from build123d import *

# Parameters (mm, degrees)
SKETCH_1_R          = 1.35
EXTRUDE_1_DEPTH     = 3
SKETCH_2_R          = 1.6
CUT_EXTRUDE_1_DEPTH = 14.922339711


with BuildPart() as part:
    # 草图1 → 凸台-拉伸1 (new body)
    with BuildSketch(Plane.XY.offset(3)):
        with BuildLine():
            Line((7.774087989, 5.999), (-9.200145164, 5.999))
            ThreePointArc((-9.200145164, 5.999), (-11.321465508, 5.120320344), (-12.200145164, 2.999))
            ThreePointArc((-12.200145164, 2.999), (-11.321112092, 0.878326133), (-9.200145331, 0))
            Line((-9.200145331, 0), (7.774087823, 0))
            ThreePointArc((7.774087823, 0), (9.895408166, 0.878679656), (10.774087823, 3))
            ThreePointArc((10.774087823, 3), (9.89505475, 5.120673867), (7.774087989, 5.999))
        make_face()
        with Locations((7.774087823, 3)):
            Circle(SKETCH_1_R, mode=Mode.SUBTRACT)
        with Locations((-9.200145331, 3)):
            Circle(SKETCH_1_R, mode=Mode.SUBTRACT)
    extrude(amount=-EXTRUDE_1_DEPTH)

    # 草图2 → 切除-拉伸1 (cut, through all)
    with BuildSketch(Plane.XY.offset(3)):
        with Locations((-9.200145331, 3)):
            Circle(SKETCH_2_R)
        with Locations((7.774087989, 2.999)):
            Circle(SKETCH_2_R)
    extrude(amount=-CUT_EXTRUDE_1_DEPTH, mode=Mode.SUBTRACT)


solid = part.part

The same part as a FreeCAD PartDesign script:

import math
import FreeCAD as App
import Part
import Sketcher
from FreeCAD import Vector
Q = App.Units.Quantity

doc = App.newDocument("Part")
body = doc.addObject("PartDesign::Body", "Body")

sketch1 = body.newObject("Sketcher::SketchObject", "Sketch")
sketch1.AttachmentSupport = (doc.getObject("XY_Plane"), [""])
sketch1.MapMode = "FlatFace"
sketch1.AttachmentOffset = App.Placement(Vector(0, 0, 3), App.Rotation())
sketch1.addGeometry([
    Part.LineSegment(Vector(7.774088, 5.999, 0), Vector(-9.200145, 5.999, 0)),
    Part.ArcOfCircle(Part.Circle(Vector(-9.200145, 2.999, 0), Vector(0, 0, 1), 3), math.radians(90), math.radians(180)),
    Part.ArcOfCircle(Part.Circle(Vector(-9.200145, 3, 0), Vector(0, 0, 1), 3), math.radians(-179.980901), math.radians(-90)),
    Part.LineSegment(Vector(-9.200145, 0, 0), Vector(7.774088, 0, 0)),
    Part.ArcOfCircle(Part.Circle(Vector(7.774088, 3, 0), Vector(0, 0, 1), 3), math.radians(-90), math.radians(0)),
    Part.ArcOfCircle(Part.Circle(Vector(7.774088, 2.999, 0), Vector(0, 0, 1), 3), math.radians(0.019099), math.radians(90)),
    Part.Circle(Vector(-9.200145, 3, 0), Vector(0, 0, 1), 1.35),
    Part.Circle(Vector(7.774088, 3, 0), Vector(0, 0, 1), 1.35),
], False)
sketch1.addConstraint([
    Sketcher.Constraint("Tangent", 0, 2, 1, 1),
    Sketcher.Constraint("Coincident", 1, 2, 2, 1),
    Sketcher.Constraint("Tangent", 2, 2, 3, 1),
    Sketcher.Constraint("Tangent", 3, 2, 4, 1),
    Sketcher.Constraint("Coincident", 4, 2, 5, 1),
    Sketcher.Constraint("Tangent", 5, 2, 0, 1),
    Sketcher.Constraint("Horizontal", 0),
    Sketcher.Constraint("Horizontal", 3),
    Sketcher.Constraint("Coincident", 6, 3, 2, 3),
    Sketcher.Constraint("Coincident", 7, 3, 4, 3),
    Sketcher.Constraint("Equal", 1, 2),
    Sketcher.Constraint("Equal", 2, 4),
    Sketcher.Constraint("Equal", 4, 5),
    Sketcher.Constraint("Equal", 6, 7),
    Sketcher.Constraint("PointOnObject", 2, 2, -1),
    Sketcher.Constraint("Horizontal", 5, 3, 1, 2),
    Sketcher.Constraint("Horizontal", 7, 3, 4, 2),
    Sketcher.Constraint("Radius", 1, Q("3 mm")),
    Sketcher.Constraint("Diameter", 6, Q("2.7 mm")),
    Sketcher.Constraint("DistanceY", -1, 1, 1, 3, Q("2.999 mm")),
    Sketcher.Constraint("DistanceX", 0, 2, 0, 1, Q("16.974233 mm")),
    Sketcher.Constraint("DistanceX", 1, 3, -1, 1, Q("9.200145 mm")),
])
pad1 = body.newObject("PartDesign::Pad", "Pad")
pad1.Profile = sketch1
pad1.Length = 3
pad1.Reversed = True

sketch2 = body.newObject("Sketcher::SketchObject", "Sketch001")
sketch2.AttachmentSupport = (doc.getObject("XY_Plane"), [""])
sketch2.MapMode = "FlatFace"
sketch2.AttachmentOffset = App.Placement(Vector(0, 0, 3), App.Rotation())
sketch2.addGeometry([
    Part.Circle(Vector(-9.200145, 3, 0), Vector(0, 0, 1), 1.6),
    Part.Circle(Vector(7.774088, 2.999, 0), Vector(0, 0, 1), 1.6),
], False)
sketch2.addConstraint([
    Sketcher.Constraint("Equal", 0, 1),
    Sketcher.Constraint("Diameter", 0, Q("3.2 mm")),
    Sketcher.Constraint("DistanceY", -1, 1, 0, 3, Q("3 mm")),
    Sketcher.Constraint("DistanceY", -1, 1, 1, 3, Q("2.999 mm")),
    Sketcher.Constraint("DistanceX", 0, 3, -1, 1, Q("9.200145 mm")),
    Sketcher.Constraint("DistanceX", -1, 1, 1, 3, Q("7.774088 mm")),
])
pocket1 = body.newObject("PartDesign::Pocket", "Pocket")
pocket1.Profile = sketch2
pocket1.Type = "ThroughAll"

doc.recompute()
